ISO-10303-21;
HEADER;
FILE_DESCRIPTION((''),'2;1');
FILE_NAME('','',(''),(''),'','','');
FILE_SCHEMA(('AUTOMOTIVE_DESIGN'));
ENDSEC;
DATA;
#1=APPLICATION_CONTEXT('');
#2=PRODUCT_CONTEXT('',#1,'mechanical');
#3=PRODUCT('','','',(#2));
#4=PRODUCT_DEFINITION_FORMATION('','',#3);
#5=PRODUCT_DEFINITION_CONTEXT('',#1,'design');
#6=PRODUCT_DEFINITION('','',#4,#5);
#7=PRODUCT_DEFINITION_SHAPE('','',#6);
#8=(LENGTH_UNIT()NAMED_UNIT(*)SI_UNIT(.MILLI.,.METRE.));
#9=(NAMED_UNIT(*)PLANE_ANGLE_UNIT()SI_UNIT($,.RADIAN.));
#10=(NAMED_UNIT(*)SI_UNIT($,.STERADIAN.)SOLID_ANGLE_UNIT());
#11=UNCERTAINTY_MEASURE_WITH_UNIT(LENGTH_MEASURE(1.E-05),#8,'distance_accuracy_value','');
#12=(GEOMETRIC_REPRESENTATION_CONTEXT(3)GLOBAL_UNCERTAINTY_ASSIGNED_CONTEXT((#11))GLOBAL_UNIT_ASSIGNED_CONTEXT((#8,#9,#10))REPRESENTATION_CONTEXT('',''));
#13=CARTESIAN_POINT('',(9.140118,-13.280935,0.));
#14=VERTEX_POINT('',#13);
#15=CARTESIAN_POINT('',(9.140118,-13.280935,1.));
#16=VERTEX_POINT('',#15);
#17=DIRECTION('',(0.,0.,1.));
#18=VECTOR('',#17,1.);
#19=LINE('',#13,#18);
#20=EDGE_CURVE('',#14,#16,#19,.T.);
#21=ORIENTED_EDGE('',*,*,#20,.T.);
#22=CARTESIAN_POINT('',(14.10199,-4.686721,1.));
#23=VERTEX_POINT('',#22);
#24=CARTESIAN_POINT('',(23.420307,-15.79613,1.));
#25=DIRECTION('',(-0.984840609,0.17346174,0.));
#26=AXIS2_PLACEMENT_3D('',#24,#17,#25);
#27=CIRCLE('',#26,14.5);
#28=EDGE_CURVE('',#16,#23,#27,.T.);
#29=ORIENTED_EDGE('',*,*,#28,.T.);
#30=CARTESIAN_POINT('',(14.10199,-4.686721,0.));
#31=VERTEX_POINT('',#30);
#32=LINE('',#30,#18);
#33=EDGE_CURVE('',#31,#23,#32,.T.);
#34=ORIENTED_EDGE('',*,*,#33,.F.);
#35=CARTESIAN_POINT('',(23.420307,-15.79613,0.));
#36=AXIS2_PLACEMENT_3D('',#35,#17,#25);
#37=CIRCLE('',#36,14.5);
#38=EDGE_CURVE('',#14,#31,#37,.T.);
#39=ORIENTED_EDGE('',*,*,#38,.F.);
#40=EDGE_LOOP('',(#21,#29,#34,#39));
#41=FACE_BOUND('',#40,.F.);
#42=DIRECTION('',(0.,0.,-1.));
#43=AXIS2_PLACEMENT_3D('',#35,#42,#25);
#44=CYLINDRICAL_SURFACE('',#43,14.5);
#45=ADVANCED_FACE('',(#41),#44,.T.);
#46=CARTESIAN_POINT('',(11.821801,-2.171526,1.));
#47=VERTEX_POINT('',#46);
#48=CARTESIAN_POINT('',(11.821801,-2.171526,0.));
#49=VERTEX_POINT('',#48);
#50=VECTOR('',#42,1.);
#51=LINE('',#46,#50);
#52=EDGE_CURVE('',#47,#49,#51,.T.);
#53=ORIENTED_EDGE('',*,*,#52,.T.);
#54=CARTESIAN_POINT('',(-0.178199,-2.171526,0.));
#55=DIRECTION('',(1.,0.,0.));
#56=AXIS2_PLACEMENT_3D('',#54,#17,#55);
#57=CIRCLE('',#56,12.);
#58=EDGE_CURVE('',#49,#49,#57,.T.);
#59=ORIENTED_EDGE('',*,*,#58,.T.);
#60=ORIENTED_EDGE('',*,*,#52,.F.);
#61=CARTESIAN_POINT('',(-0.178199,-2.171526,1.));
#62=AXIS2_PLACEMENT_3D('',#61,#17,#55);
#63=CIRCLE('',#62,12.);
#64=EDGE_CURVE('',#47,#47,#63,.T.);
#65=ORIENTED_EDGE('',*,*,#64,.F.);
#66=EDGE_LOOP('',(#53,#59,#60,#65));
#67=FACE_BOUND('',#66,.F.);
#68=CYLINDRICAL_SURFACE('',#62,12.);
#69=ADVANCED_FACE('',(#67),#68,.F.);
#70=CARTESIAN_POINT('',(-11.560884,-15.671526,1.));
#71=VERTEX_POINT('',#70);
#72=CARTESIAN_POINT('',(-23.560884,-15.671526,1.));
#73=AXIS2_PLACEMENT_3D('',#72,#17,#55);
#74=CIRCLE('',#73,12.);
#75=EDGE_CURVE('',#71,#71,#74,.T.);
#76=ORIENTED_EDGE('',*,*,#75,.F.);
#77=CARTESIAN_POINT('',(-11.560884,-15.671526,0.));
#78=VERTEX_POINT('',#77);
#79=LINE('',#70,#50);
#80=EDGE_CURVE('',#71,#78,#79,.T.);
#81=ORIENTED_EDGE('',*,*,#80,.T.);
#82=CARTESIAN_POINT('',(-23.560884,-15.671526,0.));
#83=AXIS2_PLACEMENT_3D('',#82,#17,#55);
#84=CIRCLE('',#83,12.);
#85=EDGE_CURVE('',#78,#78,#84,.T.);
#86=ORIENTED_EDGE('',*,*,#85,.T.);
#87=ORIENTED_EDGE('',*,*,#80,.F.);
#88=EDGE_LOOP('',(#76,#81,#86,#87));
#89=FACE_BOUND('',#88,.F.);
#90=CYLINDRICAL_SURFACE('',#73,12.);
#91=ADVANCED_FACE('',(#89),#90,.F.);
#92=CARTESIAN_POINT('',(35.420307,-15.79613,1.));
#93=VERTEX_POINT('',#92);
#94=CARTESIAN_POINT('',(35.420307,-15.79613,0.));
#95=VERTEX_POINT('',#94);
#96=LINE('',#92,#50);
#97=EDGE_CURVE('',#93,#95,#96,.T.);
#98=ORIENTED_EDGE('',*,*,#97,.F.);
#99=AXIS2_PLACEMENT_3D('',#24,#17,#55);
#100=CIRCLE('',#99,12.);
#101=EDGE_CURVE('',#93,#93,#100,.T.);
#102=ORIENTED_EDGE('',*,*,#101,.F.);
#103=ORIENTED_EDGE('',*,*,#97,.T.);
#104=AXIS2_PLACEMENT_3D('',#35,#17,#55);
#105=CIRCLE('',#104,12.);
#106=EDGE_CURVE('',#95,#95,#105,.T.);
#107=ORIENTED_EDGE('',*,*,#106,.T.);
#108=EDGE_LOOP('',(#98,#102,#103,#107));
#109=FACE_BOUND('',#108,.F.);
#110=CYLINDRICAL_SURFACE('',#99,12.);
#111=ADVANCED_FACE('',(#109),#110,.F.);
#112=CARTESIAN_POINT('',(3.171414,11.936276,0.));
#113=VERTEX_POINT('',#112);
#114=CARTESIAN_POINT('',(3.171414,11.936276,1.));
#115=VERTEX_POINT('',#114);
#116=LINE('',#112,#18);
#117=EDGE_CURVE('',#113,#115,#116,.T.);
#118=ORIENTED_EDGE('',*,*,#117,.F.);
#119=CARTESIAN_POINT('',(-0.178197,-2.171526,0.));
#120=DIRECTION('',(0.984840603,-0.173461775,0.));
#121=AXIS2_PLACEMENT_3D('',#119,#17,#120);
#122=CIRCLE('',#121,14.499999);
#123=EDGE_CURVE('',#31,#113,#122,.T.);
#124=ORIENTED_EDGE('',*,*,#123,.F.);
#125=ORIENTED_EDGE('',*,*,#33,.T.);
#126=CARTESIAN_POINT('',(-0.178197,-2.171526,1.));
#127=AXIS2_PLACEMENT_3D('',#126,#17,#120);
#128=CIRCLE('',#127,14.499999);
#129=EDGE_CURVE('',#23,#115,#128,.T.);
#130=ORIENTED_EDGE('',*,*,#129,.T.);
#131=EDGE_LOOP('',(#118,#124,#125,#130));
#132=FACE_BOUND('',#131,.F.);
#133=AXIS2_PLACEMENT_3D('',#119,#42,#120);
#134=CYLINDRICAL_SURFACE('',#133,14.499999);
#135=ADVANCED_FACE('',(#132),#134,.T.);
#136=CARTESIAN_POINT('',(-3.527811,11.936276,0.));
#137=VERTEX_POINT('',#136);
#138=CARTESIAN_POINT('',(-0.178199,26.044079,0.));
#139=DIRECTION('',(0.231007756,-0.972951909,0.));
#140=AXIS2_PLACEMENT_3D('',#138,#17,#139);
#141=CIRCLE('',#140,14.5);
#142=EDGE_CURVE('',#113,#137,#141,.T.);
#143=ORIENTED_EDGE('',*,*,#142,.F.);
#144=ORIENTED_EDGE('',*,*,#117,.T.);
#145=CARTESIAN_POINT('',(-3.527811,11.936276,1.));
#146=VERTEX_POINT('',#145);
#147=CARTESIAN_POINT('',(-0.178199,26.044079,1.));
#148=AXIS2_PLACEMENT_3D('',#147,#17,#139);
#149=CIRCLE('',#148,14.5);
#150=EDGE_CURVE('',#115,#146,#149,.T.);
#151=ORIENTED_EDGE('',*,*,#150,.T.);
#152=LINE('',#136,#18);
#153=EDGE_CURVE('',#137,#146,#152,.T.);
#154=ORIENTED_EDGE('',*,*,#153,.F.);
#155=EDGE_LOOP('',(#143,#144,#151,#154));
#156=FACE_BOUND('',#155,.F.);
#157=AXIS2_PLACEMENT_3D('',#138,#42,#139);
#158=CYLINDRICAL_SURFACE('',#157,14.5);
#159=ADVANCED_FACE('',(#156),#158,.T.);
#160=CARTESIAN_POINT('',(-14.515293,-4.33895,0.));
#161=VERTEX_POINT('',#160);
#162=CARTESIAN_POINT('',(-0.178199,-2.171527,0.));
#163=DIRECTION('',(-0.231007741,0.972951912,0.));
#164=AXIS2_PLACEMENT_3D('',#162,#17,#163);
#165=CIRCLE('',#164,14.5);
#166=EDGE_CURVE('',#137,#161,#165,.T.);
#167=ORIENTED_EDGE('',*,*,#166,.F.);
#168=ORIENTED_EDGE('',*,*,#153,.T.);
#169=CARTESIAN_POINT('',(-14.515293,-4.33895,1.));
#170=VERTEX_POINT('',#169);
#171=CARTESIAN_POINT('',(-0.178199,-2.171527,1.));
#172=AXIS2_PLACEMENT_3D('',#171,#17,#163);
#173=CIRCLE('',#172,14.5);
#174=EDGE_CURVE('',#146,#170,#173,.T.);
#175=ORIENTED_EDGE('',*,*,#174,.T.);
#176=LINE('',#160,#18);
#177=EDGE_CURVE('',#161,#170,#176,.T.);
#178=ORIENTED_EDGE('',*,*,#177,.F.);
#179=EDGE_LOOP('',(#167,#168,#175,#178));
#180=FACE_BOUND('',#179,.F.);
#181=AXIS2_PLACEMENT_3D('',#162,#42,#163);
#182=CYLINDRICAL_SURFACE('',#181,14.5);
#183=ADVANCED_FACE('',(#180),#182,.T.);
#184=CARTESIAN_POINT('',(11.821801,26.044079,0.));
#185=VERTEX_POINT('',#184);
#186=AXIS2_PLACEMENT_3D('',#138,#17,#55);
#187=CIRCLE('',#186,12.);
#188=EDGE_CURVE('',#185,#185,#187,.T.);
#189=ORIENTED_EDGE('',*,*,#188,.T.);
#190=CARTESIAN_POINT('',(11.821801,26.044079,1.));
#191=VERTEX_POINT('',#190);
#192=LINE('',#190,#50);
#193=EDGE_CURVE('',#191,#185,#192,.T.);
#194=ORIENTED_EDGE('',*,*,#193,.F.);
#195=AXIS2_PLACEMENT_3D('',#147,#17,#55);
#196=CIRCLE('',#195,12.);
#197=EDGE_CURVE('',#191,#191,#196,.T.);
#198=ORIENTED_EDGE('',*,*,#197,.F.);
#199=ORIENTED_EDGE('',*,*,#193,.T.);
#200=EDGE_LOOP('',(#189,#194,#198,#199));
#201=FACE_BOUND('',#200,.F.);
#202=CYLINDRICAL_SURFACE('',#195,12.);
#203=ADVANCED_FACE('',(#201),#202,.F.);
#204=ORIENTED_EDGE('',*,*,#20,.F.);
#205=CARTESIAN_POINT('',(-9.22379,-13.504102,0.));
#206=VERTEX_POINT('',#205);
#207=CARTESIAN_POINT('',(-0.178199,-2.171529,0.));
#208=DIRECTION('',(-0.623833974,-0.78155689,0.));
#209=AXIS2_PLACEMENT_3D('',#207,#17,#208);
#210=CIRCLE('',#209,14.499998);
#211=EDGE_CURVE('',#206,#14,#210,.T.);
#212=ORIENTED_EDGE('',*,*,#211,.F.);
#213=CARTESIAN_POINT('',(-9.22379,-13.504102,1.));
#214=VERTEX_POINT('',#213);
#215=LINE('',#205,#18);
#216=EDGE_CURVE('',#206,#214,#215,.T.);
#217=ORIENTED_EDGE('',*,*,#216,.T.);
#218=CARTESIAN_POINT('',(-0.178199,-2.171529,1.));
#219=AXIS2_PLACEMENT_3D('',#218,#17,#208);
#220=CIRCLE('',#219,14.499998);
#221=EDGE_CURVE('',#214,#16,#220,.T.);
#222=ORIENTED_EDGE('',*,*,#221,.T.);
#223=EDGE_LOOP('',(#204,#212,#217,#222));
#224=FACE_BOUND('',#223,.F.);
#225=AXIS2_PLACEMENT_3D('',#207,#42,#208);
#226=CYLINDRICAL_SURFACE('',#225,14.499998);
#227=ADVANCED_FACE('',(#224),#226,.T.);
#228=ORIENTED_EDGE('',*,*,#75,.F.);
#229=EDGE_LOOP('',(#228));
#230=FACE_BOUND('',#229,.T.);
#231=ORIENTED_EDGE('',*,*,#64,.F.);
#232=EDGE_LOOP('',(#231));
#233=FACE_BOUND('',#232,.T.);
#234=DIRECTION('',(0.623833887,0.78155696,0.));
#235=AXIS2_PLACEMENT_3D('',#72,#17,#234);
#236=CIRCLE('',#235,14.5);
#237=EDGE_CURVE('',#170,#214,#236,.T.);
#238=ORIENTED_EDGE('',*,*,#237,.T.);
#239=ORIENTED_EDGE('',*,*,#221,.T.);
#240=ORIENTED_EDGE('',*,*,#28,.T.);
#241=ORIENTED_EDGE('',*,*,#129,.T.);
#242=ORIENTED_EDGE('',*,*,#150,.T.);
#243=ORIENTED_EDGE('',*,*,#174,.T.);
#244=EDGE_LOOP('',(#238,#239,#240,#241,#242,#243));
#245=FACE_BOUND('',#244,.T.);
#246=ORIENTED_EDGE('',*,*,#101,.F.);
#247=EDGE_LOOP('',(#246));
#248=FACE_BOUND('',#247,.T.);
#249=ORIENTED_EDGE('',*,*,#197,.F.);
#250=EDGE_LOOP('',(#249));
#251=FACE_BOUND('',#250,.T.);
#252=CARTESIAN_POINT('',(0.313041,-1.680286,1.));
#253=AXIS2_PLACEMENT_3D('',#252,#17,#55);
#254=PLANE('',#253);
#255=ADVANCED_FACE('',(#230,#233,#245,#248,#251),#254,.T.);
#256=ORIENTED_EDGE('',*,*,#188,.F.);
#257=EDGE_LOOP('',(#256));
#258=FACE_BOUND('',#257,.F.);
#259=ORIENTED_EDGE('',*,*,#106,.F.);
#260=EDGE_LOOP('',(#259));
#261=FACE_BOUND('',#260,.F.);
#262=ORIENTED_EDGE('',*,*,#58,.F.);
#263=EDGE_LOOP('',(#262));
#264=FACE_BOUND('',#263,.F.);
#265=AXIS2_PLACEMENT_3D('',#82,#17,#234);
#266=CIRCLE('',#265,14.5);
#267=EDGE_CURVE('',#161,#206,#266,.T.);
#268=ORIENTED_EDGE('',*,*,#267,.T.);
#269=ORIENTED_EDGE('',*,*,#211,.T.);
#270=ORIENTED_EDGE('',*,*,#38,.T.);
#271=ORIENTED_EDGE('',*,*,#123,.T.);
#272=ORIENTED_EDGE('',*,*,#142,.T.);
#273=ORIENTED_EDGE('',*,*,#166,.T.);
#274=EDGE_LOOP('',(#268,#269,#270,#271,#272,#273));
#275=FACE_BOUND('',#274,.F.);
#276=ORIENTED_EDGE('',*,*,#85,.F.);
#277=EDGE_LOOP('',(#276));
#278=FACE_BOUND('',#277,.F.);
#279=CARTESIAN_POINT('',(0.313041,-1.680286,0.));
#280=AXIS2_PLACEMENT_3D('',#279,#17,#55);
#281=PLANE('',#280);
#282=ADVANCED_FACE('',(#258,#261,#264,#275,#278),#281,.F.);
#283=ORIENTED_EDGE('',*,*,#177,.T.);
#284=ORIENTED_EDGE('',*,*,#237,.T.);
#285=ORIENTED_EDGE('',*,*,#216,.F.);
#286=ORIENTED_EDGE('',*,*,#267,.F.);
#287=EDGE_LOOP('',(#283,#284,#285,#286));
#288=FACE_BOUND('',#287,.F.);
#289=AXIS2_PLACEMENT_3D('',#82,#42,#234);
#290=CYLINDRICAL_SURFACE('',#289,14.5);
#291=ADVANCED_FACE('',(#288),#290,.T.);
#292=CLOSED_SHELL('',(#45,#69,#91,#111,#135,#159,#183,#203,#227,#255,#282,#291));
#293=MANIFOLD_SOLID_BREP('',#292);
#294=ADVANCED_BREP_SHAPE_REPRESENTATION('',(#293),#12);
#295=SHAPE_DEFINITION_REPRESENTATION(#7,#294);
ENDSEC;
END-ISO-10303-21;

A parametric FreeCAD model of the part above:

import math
import FreeCAD as App
import Part
import Sketcher
from FreeCAD import Vector

doc = App.newDocument("Part")
body = doc.addObject("PartDesign::Body", "Body")

# Sketch on XY plane
sketch1 = body.newObject("Sketcher::SketchObject", "Sketch")
sketch1.AttachmentSupport = (doc.getObject("XY_Plane"), [""])
sketch1.MapMode = "FlatFace"
sketch1.addGeometry(Part.ArcOfCircle(Part.Circle(Vector(-24, -16, 0), Vector(0, 0, 1), 15), math.radians(51), math.radians(369)), False)
sketch1.addGeometry(Part.ArcOfCircle(Part.Circle(Vector(0, -2, 0), Vector(0, 0, 1), 14), math.radians(-129), math.radians(-50)), False)
sketch1.addGeometry(Part.ArcOfCircle(Part.Circle(Vector(23, -16, 0), Vector(0, 0, 1), 15), math.radians(170), math.radians(490)), False)
sketch1.addGeometry(Part.ArcOfCircle(Part.Circle(Vector(0, -2, 0), Vector(0, 0, 1), 14), math.radians(-10), math.radians(77)), False)
sketch1.addGeometry(Part.ArcOfCircle(Part.Circle(Vector(0, 26, 0), Vector(0, 0, 1), 15), math.radians(-77), math.radians(257)), False)
sketch1.addGeometry(Part.ArcOfCircle(Part.Circle(Vector(0, -2, 0), Vector(0, 0, 1), 14), math.radians(103), math.radians(189)), False)
sketch1.addGeometry(Part.Circle(Vector(-24, -16, 0), Vector(0, 0, 1), 11), False)
sketch1.addGeometry(Part.ArcOfCircle(Part.Circle(Vector(0, -2, 0), Vector(0, 0, 1), 11), math.radians(90), math.radians(360)), False)
sketch1.addGeometry(Part.ArcOfCircle(Part.Circle(Vector(0, -2, 0), Vector(0, 0, 1), 11), math.radians(0), math.radians(90)), False)
sketch1.addGeometry(Part.Circle(Vector(23, -16, 0), Vector(0, 0, 1), 11), False)
sketch1.addGeometry(Part.ArcOfCircle(Part.Circle(Vector(0, 26, 0), Vector(0, 0, 1), 11), math.radians(-90), math.radians(0)), False)
sketch1.addGeometry(Part.ArcOfCircle(Part.Circle(Vector(0, 26, 0), Vector(0, 0, 1), 11), math.radians(0), math.radians(270)), False)
sketch1.addConstraint(Sketcher.Constraint("Coincident", 0, 2, 1, 1))
sketch1.addConstraint(Sketcher.Constraint("Coincident", 1, 2, 2, 1))
sketch1.addConstraint(Sketcher.Constraint("Coincident", 2, 2, 3, 1))
sketch1.addConstraint(Sketcher.Constraint("Coincident", 3, 2, 4, 1))
sketch1.addConstraint(Sketcher.Constraint("Coincident", 4, 2, 5, 1))
sketch1.addConstraint(Sketcher.Constraint("Coincident", 5, 2, 0, 1))
sketch1.addConstraint(Sketcher.Constraint("Tangent", 7, 1, 8, 2))
sketch1.addConstraint(Sketcher.Constraint("Coincident", 8, 1, 7, 2))
sketch1.addConstraint(Sketcher.Constraint("Tangent", 10, 1, 11, 2))
sketch1.addConstraint(Sketcher.Constraint("Coincident", 11, 1, 10, 2))
sketch1.addConstraint(Sketcher.Constraint("Coincident", 3, 3, 1, 3))
sketch1.addConstraint(Sketcher.Constraint("Coincident", 5, 3, 1, 3))
sketch1.addConstraint(Sketcher.Constraint("Coincident", 6, 3, 0, 3))
sketch1.addConstraint(Sketcher.Constraint("Coincident", 7, 3, 1, 3))
sketch1.addConstraint(Sketcher.Constraint("Coincident", 9, 3, 2, 3))
sketch1.addConstraint(Sketcher.Constraint("Coincident", 10, 3, 4, 3))
sketch1.addConstraint(Sketcher.Constraint("Equal", 0, 2))
sketch1.addConstraint(Sketcher.Constraint("Equal", 2, 3))
sketch1.addConstraint(Sketcher.Constraint("Equal", 3, 4))
sketch1.addConstraint(Sketcher.Constraint("Equal", 4, 5))
sketch1.addConstraint(Sketcher.Constraint("Equal", 6, 7))
sketch1.addConstraint(Sketcher.Constraint("Equal", 8, 9))
sketch1.addConstraint(Sketcher.Constraint("Equal", 9, 10))
sketch1.addConstraint(Sketcher.Constraint("Horizontal", 3, 2, 4, 2))
sketch1.addConstraint(Sketcher.Constraint("Horizontal", 7, 3, 8, 1))
sketch1.addConstraint(Sketcher.Constraint("Horizontal", 10, 3, 11, 1))
sketch1.addConstraint(Sketcher.Constraint("Vertical", 11, 3, 7, 1))
sketch1.addConstraint(Sketcher.Constraint("Vertical", 7, 1, 10, 1))
sketch1.addConstraint(Sketcher.Constraint("Diameter", 6, 22.0))
sketch1.addConstraint(Sketcher.Constraint("Radius", 0, 14.5))
sketch1.addConstraint(Sketcher.Constraint("DistanceY", 0, 3, 3, 3, 13.500001))
sketch1.addConstraint(Sketcher.Constraint("Radius", 1, 14.499998))
sketch1.addConstraint(Sketcher.Constraint("DistanceX", 1, 3, -1, 1, 0.178199))
sketch1.addConstraint(Sketcher.Constraint("DistanceY", 2, 3, 1, 3, 13.624601))
sketch1.addConstraint(Sketcher.Constraint("DistanceY", 3, 3, 3, 2, 14.107802))
sketch1.addConstraint(Sketcher.Constraint("DistanceY", 1, 3, -1, 1, 2.171529))
sketch1.addConstraint(Sketcher.Constraint("DistanceX", 0, 2, -1, 1, 9.22379))
sketch1.addConstraint(Sketcher.Constraint("DistanceX", -1, 1, 2, 2, 14.10199))
pad1 = body.newObject("PartDesign::Pad", "Pad")
pad1.Profile = sketch1
pad1.Length = 1

# Sketch on XY plane
sketch2 = body.newObject("Sketcher::SketchObject", "Sketch001")
sketch2.AttachmentSupport = (doc.getObject("XY_Plane"), [""])
sketch2.MapMode = "FlatFace"
sketch2.AttachmentOffset = App.Placement(Vector(0, 0, 1), App.Rotation())
sketch2.addGeometry(Part.Circle(Vector(0, 26, 0), Vector(0, 0, 1), 12), False)
sketch2.addGeometry(Part.Circle(Vector(0, -2, 0), Vector(0, 0, 1), 12), False)
sketch2.addGeometry(Part.Circle(Vector(23, -16, 0), Vector(0, 0, 1), 12), False)
sketch2.addGeometry(Part.Circle(Vector(-24, -16, 0), Vector(0, 0, 1), 12), False)
sketch2.addConstraint(Sketcher.Constraint("Equal", 0, 1))
sketch2.addConstraint(Sketcher.Constraint("Equal", 1, 2))
sketch2.addConstraint(Sketcher.Constraint("Equal", 2, 3))
sketch2.addConstraint(Sketcher.Constraint("Vertical", 0, 3, 1, 3))
sketch2.addConstraint(Sketcher.Constraint("Diameter", 0, 24.0))
sketch2.addConstraint(Sketcher.Constraint("DistanceY", 3, 3, 1, 3, 13.5))
sketch2.addConstraint(Sketcher.Constraint("DistanceX", 0, 3, -1, 1, 0.178199))
sketch2.addConstraint(Sketcher.Constraint("DistanceY", -1, 1, 0, 3, 26.044079))
sketch2.addConstraint(Sketcher.Constraint("DistanceY", 2, 3, -1, 1, 15.79613))
sketch2.addConstraint(Sketcher.Constraint("DistanceX", 3, 3, 2, 3, 46.981191))
sketch2.addConstraint(Sketcher.Constraint("DistanceY", 1, 3, -1, 1, 2.171526))
sketch2.addConstraint(Sketcher.Constraint("DistanceX", -1, 1, 2, 3, 23.420307))
pocket1 = body.newObject("PartDesign::Pocket", "Pocket")
pocket1.Profile = sketch2
pocket1.Length = 25

doc.recompute()
